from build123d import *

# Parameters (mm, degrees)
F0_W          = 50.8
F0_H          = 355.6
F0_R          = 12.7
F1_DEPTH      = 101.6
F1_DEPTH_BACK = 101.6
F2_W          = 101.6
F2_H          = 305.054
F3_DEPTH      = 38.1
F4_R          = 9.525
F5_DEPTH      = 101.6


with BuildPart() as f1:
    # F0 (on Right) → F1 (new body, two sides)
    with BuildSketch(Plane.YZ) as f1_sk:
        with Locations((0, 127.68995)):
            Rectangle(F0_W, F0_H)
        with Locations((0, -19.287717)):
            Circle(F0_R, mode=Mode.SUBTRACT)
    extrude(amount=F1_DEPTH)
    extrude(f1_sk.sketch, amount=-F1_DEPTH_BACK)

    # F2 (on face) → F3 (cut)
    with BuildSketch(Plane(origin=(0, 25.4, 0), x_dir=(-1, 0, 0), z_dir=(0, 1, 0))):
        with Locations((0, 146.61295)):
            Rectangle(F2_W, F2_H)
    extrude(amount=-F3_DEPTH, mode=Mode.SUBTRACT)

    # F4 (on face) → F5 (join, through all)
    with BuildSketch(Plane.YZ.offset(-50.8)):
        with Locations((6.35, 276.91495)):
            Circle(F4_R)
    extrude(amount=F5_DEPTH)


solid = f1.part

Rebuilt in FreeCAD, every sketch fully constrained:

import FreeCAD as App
import Part
import Sketcher
from FreeCAD import Vector
Q = App.Units.Quantity

doc = App.newDocument("Part")
body = doc.addObject("PartDesign::Body", "Body")

sketch1 = doc.addObject("Sketcher::SketchObject", "Sketch")
body.addObject(sketch1)
sketch1.AttachmentSupport = (doc.YZ_Plane, [""])
sketch1.MapMode = "FlatFace"
sketch1.addGeometry([
    Part.LineSegment(Vector(-25, 305, 0), Vector(-25, -50, 0)),
    Part.LineSegment(Vector(-25, -50, 0), Vector(25, -50, 0)),
    Part.LineSegment(Vector(25, -50, 0), Vector(25, 305, 0)),
    Part.LineSegment(Vector(25, 305, 0), Vector(-25, 305, 0)),
    Part.Circle(Vector(0, -19, 0), Vector(0, 0, 1), 13),
], False)
sketch1.addConstraint([
    Sketcher.Constraint("Coincident", 0, 2, 1, 1),
    Sketcher.Constraint("Coincident", 1, 2, 2, 1),
    Sketcher.Constraint("Coincident", 2, 2, 3, 1),
    Sketcher.Constraint("Coincident", 3, 2, 0, 1),
    Sketcher.Constraint("Vertical", 0),
    Sketcher.Constraint("Horizontal", 1),
    Sketcher.Constraint("Vertical", 2),
    Sketcher.Constraint("Horizontal", 3),
    Sketcher.Constraint("PointOnObject", 4, 3, -2),
    Sketcher.Constraint("Diameter", 4, Q("1 in")),
    Sketcher.Constraint("DistanceX", 1, 1, 1, 2, Q("2 in")),
    Sketcher.Constraint("DistanceY", 0, 2, 0, 1, Q("14 in")),
    Sketcher.Constraint("DistanceX", 0, 2, -1, 1, Q("1 in")),
    Sketcher.Constraint("DistanceY", 0, 2, -1, 1, 50.11005),
    Sketcher.Constraint("DistanceY", 4, 3, -1, 1, 19.287717),
])
pad1 = doc.addObject("PartDesign::Pad", "Pad")
body.addObject(pad1)
pad1.Profile = sketch1
pad1.Type = "TwoLengths"
pad1.Length = Q("4 in")
pad1.Length2 = Q("4 in")

sketch2 = doc.addObject("Sketcher::SketchObject", "Sketch001")
body.addObject(sketch2)
sketch2.AttachmentSupport = (doc.XZ_Plane, [""])
sketch2.MapMode = "FlatFace"
sketch2.AttachmentOffset = App.Placement(Vector(0, 0, -1 * 25.4), App.Rotation())
sketch2.addGeometry([
    Part.LineSegment(Vector(51, 299, 0), Vector(51, -6, 0)),
    Part.LineSegment(Vector(51, -6, 0), Vector(-51, -6, 0)),
    Part.LineSegment(Vector(-51, -6, 0), Vector(-51, 299, 0)),
    Part.LineSegment(Vector(-51, 299, 0), Vector(51, 299, 0)),
], False)
sketch2.addConstraint([
    Sketcher.Constraint("Coincident", 0, 2, 1, 1),
    Sketcher.Constraint("Coincident", 1, 2, 2, 1),
    Sketcher.Constraint("Coincident", 2, 2, 3, 1),
    Sketcher.Constraint("Coincident", 3, 2, 0, 1),
    Sketcher.Constraint("Vertical", 0),
    Sketcher.Constraint("Horizontal", 1),
    Sketcher.Constraint("Vertical", 2),
    Sketcher.Constraint("Horizontal", 3),
    Sketcher.Constraint("DistanceX", 1, 2, 1, 1, Q("4 in")),
    Sketcher.Constraint("DistanceX", -1, 1, 0, 2, Q("2 in")),
    Sketcher.Constraint("DistanceY", 0, 2, 0, 1, Q("12.01 in")),
    Sketcher.Constraint("DistanceY", 0, 2, -1, 1, 5.91405),
])
pocket1 = doc.addObject("PartDesign::Pocket", "Pocket")
body.addObject(pocket1)
pocket1.Profile = sketch2
pocket1.Length = Q("1.5 in")
pocket1.Reversed = True

sketch3 = doc.addObject("Sketcher::SketchObject", "Sketch002")
body.addObject(sketch3)
sketch3.AttachmentSupport = (doc.YZ_Plane, [""])
sketch3.MapMode = "FlatFace"
sketch3.AttachmentOffset = App.Placement(Vector(0, 0, -2 * 25.4), App.Rotation())
sketch3.addGeometry(Part.Circle(Vector(6, 277, 0), Vector(0, 0, 1), 10), False)
sketch3.addConstraint([
    Sketcher.Constraint("Diameter", 0, Q("0.75 in")),
    Sketcher.Constraint("DistanceX", -1, 1, 0, 3, Q("0.25 in")),
    Sketcher.Constraint("DistanceY", -1, 1, 0, 3, 276.91495),
])
pad2 = doc.addObject("PartDesign::Pad", "Pad001")
body.addObject(pad2)
pad2.Profile = sketch3
pad2.Type = "UpToLast"

doc.recompute()
